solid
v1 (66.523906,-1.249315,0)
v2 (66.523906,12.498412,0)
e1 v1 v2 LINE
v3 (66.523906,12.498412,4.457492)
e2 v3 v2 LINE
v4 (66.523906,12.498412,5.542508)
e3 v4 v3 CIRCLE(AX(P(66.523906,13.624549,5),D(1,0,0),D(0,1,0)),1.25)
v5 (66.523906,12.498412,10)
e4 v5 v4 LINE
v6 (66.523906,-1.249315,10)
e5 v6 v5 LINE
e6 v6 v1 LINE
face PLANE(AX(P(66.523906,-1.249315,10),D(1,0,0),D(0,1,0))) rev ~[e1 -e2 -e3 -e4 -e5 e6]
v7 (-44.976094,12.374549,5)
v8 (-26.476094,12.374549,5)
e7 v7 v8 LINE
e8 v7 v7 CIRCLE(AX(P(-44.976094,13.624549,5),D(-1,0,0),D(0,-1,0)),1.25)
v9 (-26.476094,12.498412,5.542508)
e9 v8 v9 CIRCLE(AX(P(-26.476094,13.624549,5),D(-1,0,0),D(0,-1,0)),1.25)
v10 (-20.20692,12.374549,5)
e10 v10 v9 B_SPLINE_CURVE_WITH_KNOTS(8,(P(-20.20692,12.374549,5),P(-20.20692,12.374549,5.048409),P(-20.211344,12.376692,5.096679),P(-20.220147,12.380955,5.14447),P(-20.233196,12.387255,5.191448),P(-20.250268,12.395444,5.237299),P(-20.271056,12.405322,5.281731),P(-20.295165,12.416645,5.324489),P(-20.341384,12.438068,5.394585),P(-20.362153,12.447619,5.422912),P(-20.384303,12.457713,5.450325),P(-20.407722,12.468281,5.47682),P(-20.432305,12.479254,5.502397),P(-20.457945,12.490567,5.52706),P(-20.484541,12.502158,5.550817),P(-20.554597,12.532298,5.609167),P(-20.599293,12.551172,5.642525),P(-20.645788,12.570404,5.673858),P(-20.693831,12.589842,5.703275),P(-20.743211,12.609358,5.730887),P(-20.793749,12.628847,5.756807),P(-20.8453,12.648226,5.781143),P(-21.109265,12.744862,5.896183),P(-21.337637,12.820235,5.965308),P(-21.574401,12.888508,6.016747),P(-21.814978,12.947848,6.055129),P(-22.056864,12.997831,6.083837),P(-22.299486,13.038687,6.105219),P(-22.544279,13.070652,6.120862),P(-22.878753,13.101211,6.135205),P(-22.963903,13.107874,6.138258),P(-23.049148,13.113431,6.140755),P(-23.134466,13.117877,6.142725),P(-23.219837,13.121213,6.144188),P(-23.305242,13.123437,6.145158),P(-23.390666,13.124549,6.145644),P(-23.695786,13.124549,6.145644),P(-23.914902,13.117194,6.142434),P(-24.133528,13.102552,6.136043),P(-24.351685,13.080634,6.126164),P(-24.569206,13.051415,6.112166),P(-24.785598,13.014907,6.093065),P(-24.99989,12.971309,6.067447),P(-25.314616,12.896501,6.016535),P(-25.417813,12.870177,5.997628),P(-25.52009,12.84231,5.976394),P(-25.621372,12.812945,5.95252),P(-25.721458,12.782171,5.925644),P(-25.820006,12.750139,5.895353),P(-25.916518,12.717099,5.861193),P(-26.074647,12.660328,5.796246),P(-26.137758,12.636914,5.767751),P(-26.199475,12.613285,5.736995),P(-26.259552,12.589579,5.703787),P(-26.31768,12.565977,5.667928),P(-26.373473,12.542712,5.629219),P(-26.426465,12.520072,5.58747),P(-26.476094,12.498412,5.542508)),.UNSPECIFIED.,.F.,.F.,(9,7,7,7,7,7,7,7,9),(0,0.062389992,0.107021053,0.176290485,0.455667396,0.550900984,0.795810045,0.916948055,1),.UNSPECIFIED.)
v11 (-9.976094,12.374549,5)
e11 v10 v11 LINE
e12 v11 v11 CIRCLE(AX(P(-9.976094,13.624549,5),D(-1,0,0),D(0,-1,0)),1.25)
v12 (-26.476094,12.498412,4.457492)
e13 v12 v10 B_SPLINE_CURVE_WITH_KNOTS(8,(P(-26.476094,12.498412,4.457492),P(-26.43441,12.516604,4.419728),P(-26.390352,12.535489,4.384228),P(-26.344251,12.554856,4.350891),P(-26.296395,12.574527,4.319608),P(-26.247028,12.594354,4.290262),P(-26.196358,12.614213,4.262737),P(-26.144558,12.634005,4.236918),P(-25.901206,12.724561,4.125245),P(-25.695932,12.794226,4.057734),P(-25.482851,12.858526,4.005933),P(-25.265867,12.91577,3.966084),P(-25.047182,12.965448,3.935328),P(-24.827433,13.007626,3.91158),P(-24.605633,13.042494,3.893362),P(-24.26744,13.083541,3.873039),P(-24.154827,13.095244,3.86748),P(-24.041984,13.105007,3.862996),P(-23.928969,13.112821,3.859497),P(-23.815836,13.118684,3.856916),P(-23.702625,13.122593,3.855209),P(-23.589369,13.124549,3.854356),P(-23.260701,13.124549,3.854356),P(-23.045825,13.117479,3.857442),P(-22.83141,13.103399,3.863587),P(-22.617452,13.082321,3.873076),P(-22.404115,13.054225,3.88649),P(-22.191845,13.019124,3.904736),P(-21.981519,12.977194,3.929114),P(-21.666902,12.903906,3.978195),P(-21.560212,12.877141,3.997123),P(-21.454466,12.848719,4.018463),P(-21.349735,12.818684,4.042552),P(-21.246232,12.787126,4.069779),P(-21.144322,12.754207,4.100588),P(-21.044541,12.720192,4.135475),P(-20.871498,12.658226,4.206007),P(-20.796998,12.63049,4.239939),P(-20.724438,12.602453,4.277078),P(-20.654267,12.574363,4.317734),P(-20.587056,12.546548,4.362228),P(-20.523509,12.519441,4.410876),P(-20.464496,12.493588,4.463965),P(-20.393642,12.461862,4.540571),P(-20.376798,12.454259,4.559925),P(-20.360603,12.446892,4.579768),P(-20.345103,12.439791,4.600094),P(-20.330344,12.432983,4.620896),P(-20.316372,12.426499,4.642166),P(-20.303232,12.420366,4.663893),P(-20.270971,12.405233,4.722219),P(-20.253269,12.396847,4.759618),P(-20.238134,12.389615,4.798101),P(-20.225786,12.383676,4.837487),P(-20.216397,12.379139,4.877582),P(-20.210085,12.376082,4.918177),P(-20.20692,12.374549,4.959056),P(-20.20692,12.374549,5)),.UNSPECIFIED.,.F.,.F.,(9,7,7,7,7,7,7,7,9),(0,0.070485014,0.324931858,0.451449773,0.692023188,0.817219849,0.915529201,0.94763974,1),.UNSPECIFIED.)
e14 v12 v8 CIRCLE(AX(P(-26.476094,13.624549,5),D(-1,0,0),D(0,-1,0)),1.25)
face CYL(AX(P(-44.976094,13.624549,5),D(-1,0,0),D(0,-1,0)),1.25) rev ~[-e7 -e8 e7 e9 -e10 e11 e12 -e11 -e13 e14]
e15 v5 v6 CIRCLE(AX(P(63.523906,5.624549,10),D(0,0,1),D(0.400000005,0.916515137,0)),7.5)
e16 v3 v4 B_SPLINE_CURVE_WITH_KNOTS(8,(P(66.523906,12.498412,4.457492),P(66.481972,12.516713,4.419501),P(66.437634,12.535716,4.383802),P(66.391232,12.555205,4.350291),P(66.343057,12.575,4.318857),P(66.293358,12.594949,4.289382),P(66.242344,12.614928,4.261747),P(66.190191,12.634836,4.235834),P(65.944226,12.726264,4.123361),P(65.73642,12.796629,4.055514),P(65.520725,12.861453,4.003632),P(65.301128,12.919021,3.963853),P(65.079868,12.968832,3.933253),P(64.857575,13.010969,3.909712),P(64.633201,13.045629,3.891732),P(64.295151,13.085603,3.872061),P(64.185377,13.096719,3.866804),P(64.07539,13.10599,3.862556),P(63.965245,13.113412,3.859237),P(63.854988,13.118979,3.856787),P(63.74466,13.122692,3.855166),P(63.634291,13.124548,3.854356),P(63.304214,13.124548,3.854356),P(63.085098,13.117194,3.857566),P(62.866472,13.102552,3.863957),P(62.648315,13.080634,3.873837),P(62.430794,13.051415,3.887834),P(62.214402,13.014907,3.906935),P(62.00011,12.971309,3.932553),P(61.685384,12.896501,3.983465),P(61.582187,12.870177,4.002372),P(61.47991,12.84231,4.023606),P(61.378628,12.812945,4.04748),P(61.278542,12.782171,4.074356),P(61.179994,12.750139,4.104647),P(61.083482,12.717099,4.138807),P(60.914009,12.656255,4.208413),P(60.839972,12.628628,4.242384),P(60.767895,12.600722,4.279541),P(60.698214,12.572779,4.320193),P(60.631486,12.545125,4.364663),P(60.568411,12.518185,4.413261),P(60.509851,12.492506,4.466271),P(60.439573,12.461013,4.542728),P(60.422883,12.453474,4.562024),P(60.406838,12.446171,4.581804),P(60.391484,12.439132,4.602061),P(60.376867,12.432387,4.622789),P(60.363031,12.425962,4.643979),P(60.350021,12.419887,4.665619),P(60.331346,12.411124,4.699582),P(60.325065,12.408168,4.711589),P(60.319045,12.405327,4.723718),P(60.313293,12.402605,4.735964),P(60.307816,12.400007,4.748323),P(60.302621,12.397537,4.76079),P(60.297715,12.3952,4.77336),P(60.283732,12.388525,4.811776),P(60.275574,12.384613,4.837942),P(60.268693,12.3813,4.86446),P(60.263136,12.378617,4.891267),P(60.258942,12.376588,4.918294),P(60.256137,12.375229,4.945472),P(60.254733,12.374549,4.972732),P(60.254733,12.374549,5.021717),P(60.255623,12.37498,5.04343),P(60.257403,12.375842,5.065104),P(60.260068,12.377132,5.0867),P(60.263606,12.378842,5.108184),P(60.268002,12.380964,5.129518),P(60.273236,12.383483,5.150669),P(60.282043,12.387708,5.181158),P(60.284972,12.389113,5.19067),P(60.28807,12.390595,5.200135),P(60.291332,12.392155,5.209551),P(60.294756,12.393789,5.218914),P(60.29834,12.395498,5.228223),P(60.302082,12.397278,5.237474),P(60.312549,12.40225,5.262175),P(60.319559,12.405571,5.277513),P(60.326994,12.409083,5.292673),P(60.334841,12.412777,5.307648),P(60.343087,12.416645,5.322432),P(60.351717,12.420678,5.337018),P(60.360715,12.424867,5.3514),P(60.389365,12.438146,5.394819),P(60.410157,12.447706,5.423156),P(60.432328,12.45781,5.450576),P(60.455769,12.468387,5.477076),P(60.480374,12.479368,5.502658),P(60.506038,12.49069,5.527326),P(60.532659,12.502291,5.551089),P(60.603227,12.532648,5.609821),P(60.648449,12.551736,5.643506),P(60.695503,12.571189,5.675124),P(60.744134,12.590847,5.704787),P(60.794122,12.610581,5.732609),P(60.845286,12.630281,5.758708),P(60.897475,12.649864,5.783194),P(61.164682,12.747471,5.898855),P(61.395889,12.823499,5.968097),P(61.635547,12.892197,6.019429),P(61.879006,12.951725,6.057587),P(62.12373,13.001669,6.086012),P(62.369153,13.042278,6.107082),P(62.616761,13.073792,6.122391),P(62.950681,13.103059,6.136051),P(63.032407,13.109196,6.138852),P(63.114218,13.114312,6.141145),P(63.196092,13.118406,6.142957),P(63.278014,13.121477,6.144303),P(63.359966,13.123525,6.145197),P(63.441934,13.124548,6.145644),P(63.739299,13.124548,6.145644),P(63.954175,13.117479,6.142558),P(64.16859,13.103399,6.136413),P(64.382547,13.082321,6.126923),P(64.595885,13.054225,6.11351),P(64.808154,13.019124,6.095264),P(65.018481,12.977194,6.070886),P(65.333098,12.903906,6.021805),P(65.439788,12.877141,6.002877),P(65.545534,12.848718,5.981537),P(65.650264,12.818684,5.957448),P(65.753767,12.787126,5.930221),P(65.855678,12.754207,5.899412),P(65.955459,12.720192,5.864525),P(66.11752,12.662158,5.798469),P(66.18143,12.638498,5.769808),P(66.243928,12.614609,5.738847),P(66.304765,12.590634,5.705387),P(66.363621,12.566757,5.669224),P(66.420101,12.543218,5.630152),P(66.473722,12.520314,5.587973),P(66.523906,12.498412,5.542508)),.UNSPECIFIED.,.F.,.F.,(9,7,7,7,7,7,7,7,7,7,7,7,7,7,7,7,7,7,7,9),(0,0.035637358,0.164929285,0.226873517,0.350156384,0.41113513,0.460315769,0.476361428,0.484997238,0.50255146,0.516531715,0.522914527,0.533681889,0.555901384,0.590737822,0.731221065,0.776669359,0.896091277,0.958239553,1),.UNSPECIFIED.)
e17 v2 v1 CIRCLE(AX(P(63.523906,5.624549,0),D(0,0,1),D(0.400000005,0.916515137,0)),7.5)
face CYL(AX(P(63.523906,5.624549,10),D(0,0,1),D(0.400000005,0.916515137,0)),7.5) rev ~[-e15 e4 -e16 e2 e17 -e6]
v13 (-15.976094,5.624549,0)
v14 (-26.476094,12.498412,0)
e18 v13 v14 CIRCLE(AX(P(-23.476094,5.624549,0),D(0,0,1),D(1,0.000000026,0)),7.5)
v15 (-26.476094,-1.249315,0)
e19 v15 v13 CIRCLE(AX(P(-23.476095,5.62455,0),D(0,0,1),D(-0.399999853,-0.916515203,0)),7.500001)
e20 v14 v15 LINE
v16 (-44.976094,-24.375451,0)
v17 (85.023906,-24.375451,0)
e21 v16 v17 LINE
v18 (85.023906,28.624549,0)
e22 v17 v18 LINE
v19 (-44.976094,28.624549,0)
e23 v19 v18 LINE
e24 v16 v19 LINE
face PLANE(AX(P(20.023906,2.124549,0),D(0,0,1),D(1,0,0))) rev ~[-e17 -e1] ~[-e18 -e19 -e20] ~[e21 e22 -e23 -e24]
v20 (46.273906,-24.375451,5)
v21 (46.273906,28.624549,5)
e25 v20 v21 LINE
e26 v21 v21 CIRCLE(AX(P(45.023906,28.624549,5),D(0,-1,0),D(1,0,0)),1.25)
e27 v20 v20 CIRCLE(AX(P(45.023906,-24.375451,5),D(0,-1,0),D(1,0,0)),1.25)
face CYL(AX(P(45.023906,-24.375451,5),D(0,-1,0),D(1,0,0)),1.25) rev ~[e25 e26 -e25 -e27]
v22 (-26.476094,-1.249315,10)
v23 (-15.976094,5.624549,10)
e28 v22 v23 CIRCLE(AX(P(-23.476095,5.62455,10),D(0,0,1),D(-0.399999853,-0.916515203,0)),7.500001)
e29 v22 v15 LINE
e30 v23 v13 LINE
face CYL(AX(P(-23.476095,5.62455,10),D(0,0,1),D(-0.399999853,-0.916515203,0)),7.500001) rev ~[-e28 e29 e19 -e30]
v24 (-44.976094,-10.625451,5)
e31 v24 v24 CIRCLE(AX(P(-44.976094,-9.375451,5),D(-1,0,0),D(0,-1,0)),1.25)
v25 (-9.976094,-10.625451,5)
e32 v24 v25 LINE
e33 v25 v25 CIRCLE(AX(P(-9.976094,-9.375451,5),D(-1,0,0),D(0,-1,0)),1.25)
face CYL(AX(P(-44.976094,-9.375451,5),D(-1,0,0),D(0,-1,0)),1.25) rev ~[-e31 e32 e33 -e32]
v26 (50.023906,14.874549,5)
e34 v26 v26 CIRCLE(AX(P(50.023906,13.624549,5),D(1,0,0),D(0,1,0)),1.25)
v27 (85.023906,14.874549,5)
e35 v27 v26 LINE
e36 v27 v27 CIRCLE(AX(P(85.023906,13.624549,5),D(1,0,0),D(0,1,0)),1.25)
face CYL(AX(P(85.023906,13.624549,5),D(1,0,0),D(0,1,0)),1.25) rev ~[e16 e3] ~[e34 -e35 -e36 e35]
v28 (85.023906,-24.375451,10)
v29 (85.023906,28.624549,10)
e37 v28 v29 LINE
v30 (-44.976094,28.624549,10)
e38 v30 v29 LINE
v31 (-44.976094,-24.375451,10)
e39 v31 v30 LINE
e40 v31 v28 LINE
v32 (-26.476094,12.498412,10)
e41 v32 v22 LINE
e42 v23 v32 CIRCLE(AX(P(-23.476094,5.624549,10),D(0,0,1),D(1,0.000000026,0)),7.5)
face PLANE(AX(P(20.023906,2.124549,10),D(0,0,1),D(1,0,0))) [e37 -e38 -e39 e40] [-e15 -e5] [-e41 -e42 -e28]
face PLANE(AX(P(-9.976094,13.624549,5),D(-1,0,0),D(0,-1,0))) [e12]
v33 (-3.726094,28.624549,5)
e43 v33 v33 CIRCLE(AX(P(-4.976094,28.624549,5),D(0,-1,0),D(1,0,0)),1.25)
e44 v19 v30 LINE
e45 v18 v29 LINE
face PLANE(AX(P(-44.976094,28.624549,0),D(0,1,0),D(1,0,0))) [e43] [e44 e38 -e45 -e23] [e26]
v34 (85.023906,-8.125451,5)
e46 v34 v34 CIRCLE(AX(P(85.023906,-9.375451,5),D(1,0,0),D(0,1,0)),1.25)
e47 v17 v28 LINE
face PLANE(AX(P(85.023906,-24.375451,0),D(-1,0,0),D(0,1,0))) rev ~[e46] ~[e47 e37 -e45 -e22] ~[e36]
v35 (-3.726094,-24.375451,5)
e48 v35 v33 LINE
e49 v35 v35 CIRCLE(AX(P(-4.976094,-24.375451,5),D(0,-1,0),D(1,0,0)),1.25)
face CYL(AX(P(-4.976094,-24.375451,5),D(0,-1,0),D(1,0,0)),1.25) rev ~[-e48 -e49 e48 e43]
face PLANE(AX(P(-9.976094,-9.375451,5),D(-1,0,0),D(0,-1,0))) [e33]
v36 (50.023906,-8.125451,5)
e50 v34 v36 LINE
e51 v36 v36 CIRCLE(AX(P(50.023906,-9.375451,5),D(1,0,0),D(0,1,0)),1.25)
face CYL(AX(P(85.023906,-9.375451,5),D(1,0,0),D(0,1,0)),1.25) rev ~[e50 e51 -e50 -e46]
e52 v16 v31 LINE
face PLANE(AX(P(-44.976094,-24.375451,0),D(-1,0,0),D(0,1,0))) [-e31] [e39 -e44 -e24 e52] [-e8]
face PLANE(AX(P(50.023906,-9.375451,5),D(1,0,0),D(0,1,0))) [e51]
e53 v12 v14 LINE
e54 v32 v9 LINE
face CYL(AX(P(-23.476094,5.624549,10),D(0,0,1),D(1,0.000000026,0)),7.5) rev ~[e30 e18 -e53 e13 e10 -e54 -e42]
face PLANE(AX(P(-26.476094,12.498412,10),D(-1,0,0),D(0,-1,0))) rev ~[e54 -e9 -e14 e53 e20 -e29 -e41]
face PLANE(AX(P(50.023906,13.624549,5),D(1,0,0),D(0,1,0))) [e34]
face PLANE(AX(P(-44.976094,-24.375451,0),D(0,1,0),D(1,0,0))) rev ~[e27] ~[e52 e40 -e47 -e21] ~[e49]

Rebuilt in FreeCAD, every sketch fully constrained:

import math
import FreeCAD as App
import Part
import Sketcher

doc = App.newDocument("Part")
body = doc.addObject("PartDesign::Body", "Body")

sketch1 = body.newObject("Sketcher::SketchObject", "Sketch")
sketch1.AttachmentSupport = (doc.getObject("XY_Plane"), [""])
sketch1.MapMode = "FlatFace"
sketch1.addGeometry(Part.LineSegment(App.Vector(-45, 29, 0), App.Vector(-45, -24, 0)), False)
sketch1.addGeometry(Part.LineSegment(App.Vector(-45, -24, 0), App.Vector(85, -24, 0)), False)
sketch1.addGeometry(Part.LineSegment(App.Vector(85, -24, 0), App.Vector(85, 29, 0)), False)
sketch1.addGeometry(Part.LineSegment(App.Vector(85, 29, 0), App.Vector(-45, 29, 0)), False)
sketch1.addConstraint(Sketcher.Constraint("Coincident", 0, 2, 1, 1))
sketch1.addConstraint(Sketcher.Constraint("Coincident", 1, 2, 2, 1))
sketch1.addConstraint(Sketcher.Constraint("Coincident", 2, 2, 3, 1))
sketch1.addConstraint(Sketcher.Constraint("Coincident", 3, 2, 0, 1))
sketch1.addConstraint(Sketcher.Constraint("Vertical", 0))
sketch1.addConstraint(Sketcher.Constraint("Horizontal", 1))
sketch1.addConstraint(Sketcher.Constraint("Vertical", 2))
sketch1.addConstraint(Sketcher.Constraint("Horizontal", 3))
sketch1.addConstraint(Sketcher.Constraint("DistanceX", 1, 1, 1, 2, 130.0))
sketch1.addConstraint(Sketcher.Constraint("DistanceY", 0, 2, 0, 1, 53.0))
sketch1.addConstraint(Sketcher.Constraint("DistanceY", 0, 2, -1, 1, 24.375451))
sketch1.addConstraint(Sketcher.Constraint("DistanceX", 0, 2, -1, 1, 44.976094))
pad1 = body.newObject("PartDesign::Pad", "Pad")
pad1.Profile = sketch1
pad1.Length = 10

sketch2 = body.newObject("Sketcher::SketchObject", "Sketch001")
sketch2.AttachmentSupport = (doc.getObject("YZ_Plane"), [""])
sketch2.MapMode = "FlatFace"
sketch2.AttachmentOffset = App.Placement(App.Vector(0, 0, 85.023906), App.Rotation())
sketch2.addGeometry(Part.Circle(App.Vector(-9.4, 5, 0), App.Vector(0, 0, 1), 1.2), False)
sketch2.addGeometry(Part.Circle(App.Vector(13.6, 5, 0), App.Vector(0, 0, 1), 1.2), False)
sketch2.addConstraint(Sketcher.Constraint("Equal", 0, 1))
sketch2.addConstraint(Sketcher.Constraint("Horizontal", 0, 3, 1, 3))
sketch2.addConstraint(Sketcher.Constraint("Diameter", 0, 2.5))
sketch2.addConstraint(Sketcher.Constraint("DistanceY", -1, 1, 0, 3, 5.0))
sketch2.addConstraint(Sketcher.Constraint("DistanceX", 0, 3, 1, 3, 23.0))
sketch2.addConstraint(Sketcher.Constraint("DistanceX", 0, 3, -1, 1, 9.375451))
pocket1 = body.newObject("PartDesign::Pocket", "Pocket")
pocket1.Profile = sketch2
pocket1.Length = 35

sketch3 = body.newObject("Sketcher::SketchObject", "Sketch002")
sketch3.AttachmentSupport = (doc.getObject("XZ_Plane"), [""])
sketch3.MapMode = "FlatFace"
sketch3.AttachmentOffset = App.Placement(App.Vector(0, 0, 24.375451), App.Rotation())
sketch3.addGeometry(Part.Circle(App.Vector(-5, 5, 0), App.Vector(0, 0, 1), 1.2), False)
sketch3.addGeometry(Part.Circle(App.Vector(45, 5, 0), App.Vector(0, 0, 1), 1.2), False)
sketch3.addConstraint(Sketcher.Constraint("Equal", 0, 1))
sketch3.addConstraint(Sketcher.Constraint("Horizontal", 0, 3, 1, 3))
sketch3.addConstraint(Sketcher.Constraint("Diameter", 0, 2.5))
sketch3.addConstraint(Sketcher.Constraint("DistanceY", -1, 1, 0, 3, 5.0))
sketch3.addConstraint(Sketcher.Constraint("DistanceX", 0, 3, 1, 3, 50.0))
sketch3.addConstraint(Sketcher.Constraint("DistanceX", 0, 3, -1, 1, 4.976094))
pocket2 = body.newObject("PartDesign::Pocket", "Pocket001")
pocket2.Profile = sketch3
pocket2.Type = "ThroughAll"

sketch4 = body.newObject("Sketcher::SketchObject", "Sketch003")
sketch4.AttachmentSupport = (doc.getObject("YZ_Plane"), [""])
sketch4.MapMode = "FlatFace"
sketch4.AttachmentOffset = App.Placement(App.Vector(0, 0, -44.976094), App.Rotation())
sketch4.addGeometry(Part.Circle(App.Vector(13.6, 5, 0), App.Vector(0, 0, 1), 1.2), False)
sketch4.addGeometry(Part.Circle(App.Vector(-9.4, 5, 0), App.Vector(0, 0, 1), 1.2), False)
sketch4.addConstraint(Sketcher.Constraint("Equal", 0, 1))
sketch4.addConstraint(Sketcher.Constraint("Horizontal", 0, 3, 1, 3))
sketch4.addConstraint(Sketcher.Constraint("Diameter", 0, 2.5))
sketch4.addConstraint(Sketcher.Constraint("DistanceY", -1, 1, 0, 3, 5.0))
sketch4.addConstraint(Sketcher.Constraint("DistanceX", 1, 3, 0, 3, 23.0))
sketch4.addConstraint(Sketcher.Constraint("DistanceX", -1, 1, 0, 3, 13.624549))
pocket3 = body.newObject("PartDesign::Pocket", "Pocket002")
pocket3.Profile = sketch4
pocket3.Length = 35
pocket3.Reversed = True

sketch5 = body.newObject("Sketcher::SketchObject", "Sketch004")
sketch5.AttachmentSupport = (doc.getObject("XY_Plane"), [""])
sketch5.MapMode = "FlatFace"
sketch5.AttachmentOffset = App.Placement(App.Vector(0, 0, 10), App.Rotation())
sketch5.addGeometry(Part.LineSegment(App.Vector(67, -1, 0), App.Vector(67, 12, 0)), False)
sketch5.addGeometry(Part.ArcOfCircle(Part.Circle(App.Vector(64, 6, 0), App.Vector(0, 0, 1), 7), math.radians(66), math.radians(294)), False)
sketch5.addGeometry(Part.ArcOfCircle(Part.Circle(App.Vector(-23, 6, 0), App.Vector(0, 0, 1), 8), math.radians(-114), math.radians(0)), False)
sketch5.addGeometry(Part.ArcOfCircle(Part.Circle(App.Vector(-23, 6, 0), App.Vector(0, 0, 1), 7), math.radians(0), math.radians(114)), False)
sketch5.addGeometry(Part.LineSegment(App.Vector(-26, 12, 0), App.Vector(-26, -1, 0)), False)
sketch5.addConstraint(Sketcher.Constraint("Coincident", 0, 1, 1, 2))
sketch5.addConstraint(Sketcher.Constraint("Coincident", 1, 1, 0, 2))
sketch5.addConstraint(Sketcher.Constraint("Tangent", 2, 2, 3, 1))
sketch5.addConstraint(Sketcher.Constraint("Coincident", 3, 2, 4, 1))
sketch5.addConstraint(Sketcher.Constraint("Coincident", 4, 2, 2, 1))
sketch5.addConstraint(Sketcher.Constraint("Vertical", 0))
sketch5.addConstraint(Sketcher.Constraint("Vertical", 4))
sketch5.addConstraint(Sketcher.Constraint("Equal", 1, 2))
sketch5.addConstraint(Sketcher.Constraint("Equal", 2, 3))
sketch5.addConstraint(Sketcher.Constraint("Horizontal", 1, 3, 2, 3))
sketch5.addConstraint(Sketcher.Constraint("Horizontal", 3, 3, 2, 2))
sketch5.addConstraint(Sketcher.Constraint("Horizontal", 1, 1, 3, 2))
sketch5.addConstraint(Sketcher.Constraint("Radius", 1, 7.5))
sketch5.addConstraint(Sketcher.Constraint("DistanceX", 2, 3, 1, 3, 87.000001))
sketch5.addConstraint(Sketcher.Constraint("DistanceX", 1, 3, 0, 1, 3.0))
sketch5.addConstraint(Sketcher.Constraint("DistanceY", -1, 1, 1, 3, 5.624549))
sketch5.addConstraint(Sketcher.Constraint("DistanceX", -1, 1, 1, 3, 63.523906))
pocket4 = body.newObject("PartDesign::Pocket", "Pocket003")
pocket4.Profile = sketch5
pocket4.Type = "ThroughAll"

doc.recompute()
